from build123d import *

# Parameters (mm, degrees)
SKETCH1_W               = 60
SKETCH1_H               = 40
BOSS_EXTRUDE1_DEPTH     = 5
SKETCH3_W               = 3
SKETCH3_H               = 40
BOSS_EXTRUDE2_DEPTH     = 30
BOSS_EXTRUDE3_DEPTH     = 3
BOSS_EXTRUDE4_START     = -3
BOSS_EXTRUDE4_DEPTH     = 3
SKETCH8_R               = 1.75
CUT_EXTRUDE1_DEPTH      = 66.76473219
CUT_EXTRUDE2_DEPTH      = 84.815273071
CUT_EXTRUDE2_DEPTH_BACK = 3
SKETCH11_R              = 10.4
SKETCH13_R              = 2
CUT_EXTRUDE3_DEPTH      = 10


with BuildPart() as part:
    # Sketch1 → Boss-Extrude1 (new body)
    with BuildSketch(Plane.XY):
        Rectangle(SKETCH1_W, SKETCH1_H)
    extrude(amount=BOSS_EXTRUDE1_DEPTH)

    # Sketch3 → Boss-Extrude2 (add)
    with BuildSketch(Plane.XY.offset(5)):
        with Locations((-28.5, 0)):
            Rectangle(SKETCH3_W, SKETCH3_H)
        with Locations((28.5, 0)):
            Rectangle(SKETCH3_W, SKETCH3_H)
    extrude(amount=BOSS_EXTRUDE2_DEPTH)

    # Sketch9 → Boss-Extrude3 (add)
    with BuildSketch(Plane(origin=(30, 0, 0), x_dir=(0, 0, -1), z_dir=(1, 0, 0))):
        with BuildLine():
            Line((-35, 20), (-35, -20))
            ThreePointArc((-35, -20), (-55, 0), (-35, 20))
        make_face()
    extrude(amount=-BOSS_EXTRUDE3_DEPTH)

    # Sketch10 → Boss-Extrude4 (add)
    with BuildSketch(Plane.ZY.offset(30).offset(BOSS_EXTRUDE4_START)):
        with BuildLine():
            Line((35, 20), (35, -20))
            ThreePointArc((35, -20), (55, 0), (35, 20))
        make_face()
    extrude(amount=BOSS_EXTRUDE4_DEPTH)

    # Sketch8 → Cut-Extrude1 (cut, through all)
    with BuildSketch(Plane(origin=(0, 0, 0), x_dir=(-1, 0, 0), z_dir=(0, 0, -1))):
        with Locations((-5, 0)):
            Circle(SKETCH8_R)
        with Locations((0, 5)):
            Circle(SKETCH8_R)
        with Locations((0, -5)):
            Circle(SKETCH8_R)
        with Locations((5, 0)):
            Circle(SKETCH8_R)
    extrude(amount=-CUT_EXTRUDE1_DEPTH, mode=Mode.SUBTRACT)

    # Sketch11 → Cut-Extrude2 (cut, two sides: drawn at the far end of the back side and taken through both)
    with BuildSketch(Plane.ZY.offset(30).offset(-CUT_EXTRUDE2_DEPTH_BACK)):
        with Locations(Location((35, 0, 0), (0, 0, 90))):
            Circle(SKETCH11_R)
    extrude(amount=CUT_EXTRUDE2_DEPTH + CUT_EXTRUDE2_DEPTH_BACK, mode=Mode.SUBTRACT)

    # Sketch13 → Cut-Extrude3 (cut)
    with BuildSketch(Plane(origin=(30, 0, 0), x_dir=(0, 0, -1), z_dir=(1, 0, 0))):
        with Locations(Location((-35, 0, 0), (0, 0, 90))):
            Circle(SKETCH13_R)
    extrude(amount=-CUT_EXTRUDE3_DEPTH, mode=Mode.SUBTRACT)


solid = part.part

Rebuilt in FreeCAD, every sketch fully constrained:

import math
import FreeCAD as App
import Part
import Sketcher

V = App.Vector
Q = App.Units.Quantity

doc = App.newDocument("Part")
body = doc.addObject("PartDesign::Body", "Body")

# Sketch on XY plane
sketch1 = doc.addObject("Sketcher::SketchObject", "Sketch")
body.addObject(sketch1)
sketch1.AttachmentSupport = (doc.XY_Plane, [""])
sketch1.MapMode = "FlatFace"
sketch1.addGeometry([
    Part.LineSegment(V(-30, 20, 0), V(-30, -20, 0)),
    Part.LineSegment(V(-30, -20, 0), V(30, -20, 0)),
    Part.LineSegment(V(30, -20, 0), V(30, 20, 0)),
    Part.LineSegment(V(30, 20, 0), V(-30, 20, 0)),
], False)
sketch1.addConstraint([
    Sketcher.Constraint("Coincident", 0, 2, 1, 1),
    Sketcher.Constraint("Coincident", 1, 2, 2, 1),
    Sketcher.Constraint("Coincident", 2, 2, 3, 1),
    Sketcher.Constraint("Coincident", 3, 2, 0, 1),
    Sketcher.Constraint("Vertical", 0),
    Sketcher.Constraint("Horizontal", 1),
    Sketcher.Constraint("Vertical", 2),
    Sketcher.Constraint("Horizontal", 3),
    Sketcher.Constraint("Symmetric", 0, 2, 2, 2, -1, 1),
    Sketcher.Constraint("DistanceX", 1, 1, 1, 2, Q("60 mm")),
    Sketcher.Constraint("DistanceY", 0, 2, 0, 1, Q("40 mm")),
])
pad1 = doc.addObject("PartDesign::Pad", "Pad")
body.addObject(pad1)
pad1.Profile = sketch1
pad1.Length = 5

# Sketch on XY plane
sketch2 = doc.addObject("Sketcher::SketchObject", "Sketch001")
body.addObject(sketch2)
sketch2.AttachmentSupport = (doc.XY_Plane, [""])
sketch2.MapMode = "FlatFace"
sketch2.AttachmentOffset = App.Placement(V(0, 0, 5), App.Rotation())
sketch2.addGeometry([
    Part.LineSegment(V(-30, 20, 0), V(-30, -20, 0)),  # 0
    Part.LineSegment(V(-30, -20, 0), V(-27, -20, 0)),  # 1
    Part.LineSegment(V(-27, -20, 0), V(-27, 20, 0)),  # 2
    Part.LineSegment(V(-27, 20, 0), V(-30, 20, 0)),  # 3
    Part.LineSegment(V(27, 20, 0), V(27, -20, 0)),  # 4
    Part.LineSegment(V(27, -20, 0), V(30, -20, 0)),  # 5
    Part.LineSegment(V(30, -20, 0), V(30, 20, 0)),  # 6
    Part.LineSegment(V(30, 20, 0), V(27, 20, 0)),  # 7
], False)
sketch2.addConstraint([
    Sketcher.Constraint("Coincident", 0, 2, 1, 1),
    Sketcher.Constraint("Coincident", 1, 2, 2, 1),
    Sketcher.Constraint("Coincident", 2, 2, 3, 1),
    Sketcher.Constraint("Coincident", 3, 2, 0, 1),
    Sketcher.Constraint("Coincident", 4, 2, 5, 1),
    Sketcher.Constraint("Coincident", 5, 2, 6, 1),
    Sketcher.Constraint("Coincident", 6, 2, 7, 1),
    Sketcher.Constraint("Coincident", 7, 2, 4, 1),
    Sketcher.Constraint("Vertical", 0),
    Sketcher.Constraint("Horizontal", 1),
    Sketcher.Constraint("Vertical", 2),
    Sketcher.Constraint("Horizontal", 3),
    Sketcher.Constraint("Vertical", 4),
    Sketcher.Constraint("Horizontal", 5),
    Sketcher.Constraint("Vertical", 6),
    Sketcher.Constraint("Horizontal", 7),
    Sketcher.Constraint("Symmetric", 2, 2, 4, 2, -1, 1),
    Sketcher.Constraint("Symmetric", 0, 2, 6, 2, -1, 1),
    Sketcher.Constraint("Horizontal", 1, 2, 4, 2),
    Sketcher.Constraint("DistanceX", 1, 1, 1, 2, Q("3 mm")),
    Sketcher.Constraint("DistanceY", 0, 2, 0, 1, Q("40 mm")),
    Sketcher.Constraint("DistanceX", 0, 2, -1, 1, Q("30 mm")),
])
pad2 = doc.addObject("PartDesign::Pad", "Pad001")
body.addObject(pad2)
pad2.Profile = sketch2
pad2.Length = 30

# Sketch on YZ plane
sketch3 = doc.addObject("Sketcher::SketchObject", "Sketch002")
body.addObject(sketch3)
sketch3.AttachmentSupport = (doc.YZ_Plane, [""])
sketch3.MapMode = "FlatFace"
sketch3.AttachmentOffset = App.Placement(V(0, 0, 30), App.Rotation())
sketch3.addGeometry([
    Part.LineSegment(V(-20, 35, 0), V(20, 35, 0)),
    Part.ArcOfCircle(Part.Circle(V(0, 35, 0), V(0, 0, 1), 20), math.radians(0), math.radians(180)),
], False)
sketch3.addConstraint([
    Sketcher.Constraint("Coincident", 0, 1, 1, 2),
    Sketcher.Constraint("Coincident", 1, 1, 0, 2),
    Sketcher.Constraint("Horizontal", 0),
    Sketcher.Constraint("PointOnObject", 1, 3, -2),
    Sketcher.Constraint("Horizontal", 1, 3, 0, 1),
    Sketcher.Constraint("Radius", 1, Q("20 mm")),
    Sketcher.Constraint("DistanceY", -1, 1, 1, 3, Q("35 mm")),
])
pad3 = doc.addObject("PartDesign::Pad", "Pad002")
body.addObject(pad3)
pad3.Profile = sketch3
pad3.Length = 3
pad3.Reversed = True

# Sketch on YZ plane
sketch4 = doc.addObject("Sketcher::SketchObject", "Sketch003")
body.addObject(sketch4)
sketch4.AttachmentSupport = (doc.YZ_Plane, [""])
sketch4.MapMode = "FlatFace"
sketch4.AttachmentOffset = App.Placement(V(0, 0, -27), App.Rotation())
sketch4.addGeometry([
    Part.LineSegment(V(20, 35, 0), V(-20, 35, 0)),
    Part.ArcOfCircle(Part.Circle(V(0, 35, 0), V(0, 0, 1), 20), math.radians(0), math.radians(180)),
], False)
sketch4.addConstraint([
    Sketcher.Constraint("Coincident", 0, 1, 1, 1),
    Sketcher.Constraint("Coincident", 1, 2, 0, 2),
    Sketcher.Constraint("Horizontal", 0),
    Sketcher.Constraint("PointOnObject", 1, 3, -2),
    Sketcher.Constraint("Horizontal", 1, 3, 0, 1),
    Sketcher.Constraint("Radius", 1, Q("20 mm")),
    Sketcher.Constraint("DistanceY", -1, 1, 1, 3, Q("35 mm")),
])
pad4 = doc.addObject("PartDesign::Pad", "Pad003")
body.addObject(pad4)
pad4.Profile = sketch4
pad4.Length = 3
pad4.Reversed = True

# Sketch on XY plane
sketch5 = doc.addObject("Sketcher::SketchObject", "Sketch004")
body.addObject(sketch5)
sketch5.AttachmentSupport = (doc.XY_Plane, [""])
sketch5.MapMode = "FlatFace"
sketch5.addGeometry([
    Part.Circle(V(5, 0, 0), V(0, 0, 1), 1.8),
    Part.Circle(V(0, 5, 0), V(0, 0, 1), 1.8),
    Part.Circle(V(0, -5, 0), V(0, 0, 1), 1.8),
    Part.Circle(V(-5, 0, 0), V(0, 0, 1), 1.8),
], False)
sketch5.addConstraint([
    Sketcher.Constraint("Equal", 0, 1),
    Sketcher.Constraint("Equal", 1, 2),
    Sketcher.Constraint("Equal", 2, 3),
    Sketcher.Constraint("Symmetric", 1, 3, 2, 3, -1, 1),
    Sketcher.Constraint("Symmetric", 0, 3, 3, 3, -1, 1),
    Sketcher.Constraint("PointOnObject", 0, 3, -1),
    Sketcher.Constraint("PointOnObject", 1, 3, -2),
    Sketcher.Constraint("Diameter", 0, Q("3.5 mm")),
    Sketcher.Constraint("DistanceX", -1, 1, 0, 3, Q("5 mm")),
    Sketcher.Constraint("DistanceY", -1, 1, 1, 3, Q("5 mm")),
])
pocket1 = doc.addObject("PartDesign::Pocket", "Pocket")
body.addObject(pocket1)
pocket1.Profile = sketch5
pocket1.Type = "ThroughAll"
pocket1.Reversed = True

# Sketch on YZ plane
sketch6 = doc.addObject("Sketcher::SketchObject", "Sketch005")
body.addObject(sketch6)
sketch6.AttachmentSupport = (doc.YZ_Plane, [""])
sketch6.MapMode = "FlatFace"
sketch6.AttachmentOffset = App.Placement(V(0, 0, -30), App.Rotation())
sketch6.addGeometry(Part.Circle(V(0, 35, 0), V(0, 0, 1), 10), False)
sketch6.addConstraint([
    Sketcher.Constraint("PointOnObject", 0, 3, -2),
    Sketcher.Constraint("Diameter", 0, Q("20.8 mm")),
    Sketcher.Constraint("DistanceY", -1, 1, 0, 3, Q("35 mm")),
])
pocket2 = doc.addObject("PartDesign::Pocket", "Pocket001")
body.addObject(pocket2)
pocket2.Profile = sketch6
pocket2.Type = "TwoLengths"
pocket2.Length = 84.815273
pocket2.Length2 = 3

# Sketch on YZ plane
sketch7 = doc.addObject("Sketcher::SketchObject", "Sketch006")
body.addObject(sketch7)
sketch7.AttachmentSupport = (doc.YZ_Plane, [""])
sketch7.MapMode = "FlatFace"
sketch7.AttachmentOffset = App.Placement(V(0, 0, 30), App.Rotation())
sketch7.addGeometry(Part.Circle(V(0, 35, 0), V(0, 0, 1), 2), False)
sketch7.addConstraint([
    Sketcher.Constraint("PointOnObject", 0, 3, -2),
    Sketcher.Constraint("Diameter", 0, Q("4 mm")),
    Sketcher.Constraint("DistanceY", -1, 1, 0, 3, Q("35 mm")),
])
pocket3 = doc.addObject("PartDesign::Pocket", "Pocket002")
body.addObject(pocket3)
pocket3.Profile = sketch7
pocket3.Length = 10

doc.recompute()
